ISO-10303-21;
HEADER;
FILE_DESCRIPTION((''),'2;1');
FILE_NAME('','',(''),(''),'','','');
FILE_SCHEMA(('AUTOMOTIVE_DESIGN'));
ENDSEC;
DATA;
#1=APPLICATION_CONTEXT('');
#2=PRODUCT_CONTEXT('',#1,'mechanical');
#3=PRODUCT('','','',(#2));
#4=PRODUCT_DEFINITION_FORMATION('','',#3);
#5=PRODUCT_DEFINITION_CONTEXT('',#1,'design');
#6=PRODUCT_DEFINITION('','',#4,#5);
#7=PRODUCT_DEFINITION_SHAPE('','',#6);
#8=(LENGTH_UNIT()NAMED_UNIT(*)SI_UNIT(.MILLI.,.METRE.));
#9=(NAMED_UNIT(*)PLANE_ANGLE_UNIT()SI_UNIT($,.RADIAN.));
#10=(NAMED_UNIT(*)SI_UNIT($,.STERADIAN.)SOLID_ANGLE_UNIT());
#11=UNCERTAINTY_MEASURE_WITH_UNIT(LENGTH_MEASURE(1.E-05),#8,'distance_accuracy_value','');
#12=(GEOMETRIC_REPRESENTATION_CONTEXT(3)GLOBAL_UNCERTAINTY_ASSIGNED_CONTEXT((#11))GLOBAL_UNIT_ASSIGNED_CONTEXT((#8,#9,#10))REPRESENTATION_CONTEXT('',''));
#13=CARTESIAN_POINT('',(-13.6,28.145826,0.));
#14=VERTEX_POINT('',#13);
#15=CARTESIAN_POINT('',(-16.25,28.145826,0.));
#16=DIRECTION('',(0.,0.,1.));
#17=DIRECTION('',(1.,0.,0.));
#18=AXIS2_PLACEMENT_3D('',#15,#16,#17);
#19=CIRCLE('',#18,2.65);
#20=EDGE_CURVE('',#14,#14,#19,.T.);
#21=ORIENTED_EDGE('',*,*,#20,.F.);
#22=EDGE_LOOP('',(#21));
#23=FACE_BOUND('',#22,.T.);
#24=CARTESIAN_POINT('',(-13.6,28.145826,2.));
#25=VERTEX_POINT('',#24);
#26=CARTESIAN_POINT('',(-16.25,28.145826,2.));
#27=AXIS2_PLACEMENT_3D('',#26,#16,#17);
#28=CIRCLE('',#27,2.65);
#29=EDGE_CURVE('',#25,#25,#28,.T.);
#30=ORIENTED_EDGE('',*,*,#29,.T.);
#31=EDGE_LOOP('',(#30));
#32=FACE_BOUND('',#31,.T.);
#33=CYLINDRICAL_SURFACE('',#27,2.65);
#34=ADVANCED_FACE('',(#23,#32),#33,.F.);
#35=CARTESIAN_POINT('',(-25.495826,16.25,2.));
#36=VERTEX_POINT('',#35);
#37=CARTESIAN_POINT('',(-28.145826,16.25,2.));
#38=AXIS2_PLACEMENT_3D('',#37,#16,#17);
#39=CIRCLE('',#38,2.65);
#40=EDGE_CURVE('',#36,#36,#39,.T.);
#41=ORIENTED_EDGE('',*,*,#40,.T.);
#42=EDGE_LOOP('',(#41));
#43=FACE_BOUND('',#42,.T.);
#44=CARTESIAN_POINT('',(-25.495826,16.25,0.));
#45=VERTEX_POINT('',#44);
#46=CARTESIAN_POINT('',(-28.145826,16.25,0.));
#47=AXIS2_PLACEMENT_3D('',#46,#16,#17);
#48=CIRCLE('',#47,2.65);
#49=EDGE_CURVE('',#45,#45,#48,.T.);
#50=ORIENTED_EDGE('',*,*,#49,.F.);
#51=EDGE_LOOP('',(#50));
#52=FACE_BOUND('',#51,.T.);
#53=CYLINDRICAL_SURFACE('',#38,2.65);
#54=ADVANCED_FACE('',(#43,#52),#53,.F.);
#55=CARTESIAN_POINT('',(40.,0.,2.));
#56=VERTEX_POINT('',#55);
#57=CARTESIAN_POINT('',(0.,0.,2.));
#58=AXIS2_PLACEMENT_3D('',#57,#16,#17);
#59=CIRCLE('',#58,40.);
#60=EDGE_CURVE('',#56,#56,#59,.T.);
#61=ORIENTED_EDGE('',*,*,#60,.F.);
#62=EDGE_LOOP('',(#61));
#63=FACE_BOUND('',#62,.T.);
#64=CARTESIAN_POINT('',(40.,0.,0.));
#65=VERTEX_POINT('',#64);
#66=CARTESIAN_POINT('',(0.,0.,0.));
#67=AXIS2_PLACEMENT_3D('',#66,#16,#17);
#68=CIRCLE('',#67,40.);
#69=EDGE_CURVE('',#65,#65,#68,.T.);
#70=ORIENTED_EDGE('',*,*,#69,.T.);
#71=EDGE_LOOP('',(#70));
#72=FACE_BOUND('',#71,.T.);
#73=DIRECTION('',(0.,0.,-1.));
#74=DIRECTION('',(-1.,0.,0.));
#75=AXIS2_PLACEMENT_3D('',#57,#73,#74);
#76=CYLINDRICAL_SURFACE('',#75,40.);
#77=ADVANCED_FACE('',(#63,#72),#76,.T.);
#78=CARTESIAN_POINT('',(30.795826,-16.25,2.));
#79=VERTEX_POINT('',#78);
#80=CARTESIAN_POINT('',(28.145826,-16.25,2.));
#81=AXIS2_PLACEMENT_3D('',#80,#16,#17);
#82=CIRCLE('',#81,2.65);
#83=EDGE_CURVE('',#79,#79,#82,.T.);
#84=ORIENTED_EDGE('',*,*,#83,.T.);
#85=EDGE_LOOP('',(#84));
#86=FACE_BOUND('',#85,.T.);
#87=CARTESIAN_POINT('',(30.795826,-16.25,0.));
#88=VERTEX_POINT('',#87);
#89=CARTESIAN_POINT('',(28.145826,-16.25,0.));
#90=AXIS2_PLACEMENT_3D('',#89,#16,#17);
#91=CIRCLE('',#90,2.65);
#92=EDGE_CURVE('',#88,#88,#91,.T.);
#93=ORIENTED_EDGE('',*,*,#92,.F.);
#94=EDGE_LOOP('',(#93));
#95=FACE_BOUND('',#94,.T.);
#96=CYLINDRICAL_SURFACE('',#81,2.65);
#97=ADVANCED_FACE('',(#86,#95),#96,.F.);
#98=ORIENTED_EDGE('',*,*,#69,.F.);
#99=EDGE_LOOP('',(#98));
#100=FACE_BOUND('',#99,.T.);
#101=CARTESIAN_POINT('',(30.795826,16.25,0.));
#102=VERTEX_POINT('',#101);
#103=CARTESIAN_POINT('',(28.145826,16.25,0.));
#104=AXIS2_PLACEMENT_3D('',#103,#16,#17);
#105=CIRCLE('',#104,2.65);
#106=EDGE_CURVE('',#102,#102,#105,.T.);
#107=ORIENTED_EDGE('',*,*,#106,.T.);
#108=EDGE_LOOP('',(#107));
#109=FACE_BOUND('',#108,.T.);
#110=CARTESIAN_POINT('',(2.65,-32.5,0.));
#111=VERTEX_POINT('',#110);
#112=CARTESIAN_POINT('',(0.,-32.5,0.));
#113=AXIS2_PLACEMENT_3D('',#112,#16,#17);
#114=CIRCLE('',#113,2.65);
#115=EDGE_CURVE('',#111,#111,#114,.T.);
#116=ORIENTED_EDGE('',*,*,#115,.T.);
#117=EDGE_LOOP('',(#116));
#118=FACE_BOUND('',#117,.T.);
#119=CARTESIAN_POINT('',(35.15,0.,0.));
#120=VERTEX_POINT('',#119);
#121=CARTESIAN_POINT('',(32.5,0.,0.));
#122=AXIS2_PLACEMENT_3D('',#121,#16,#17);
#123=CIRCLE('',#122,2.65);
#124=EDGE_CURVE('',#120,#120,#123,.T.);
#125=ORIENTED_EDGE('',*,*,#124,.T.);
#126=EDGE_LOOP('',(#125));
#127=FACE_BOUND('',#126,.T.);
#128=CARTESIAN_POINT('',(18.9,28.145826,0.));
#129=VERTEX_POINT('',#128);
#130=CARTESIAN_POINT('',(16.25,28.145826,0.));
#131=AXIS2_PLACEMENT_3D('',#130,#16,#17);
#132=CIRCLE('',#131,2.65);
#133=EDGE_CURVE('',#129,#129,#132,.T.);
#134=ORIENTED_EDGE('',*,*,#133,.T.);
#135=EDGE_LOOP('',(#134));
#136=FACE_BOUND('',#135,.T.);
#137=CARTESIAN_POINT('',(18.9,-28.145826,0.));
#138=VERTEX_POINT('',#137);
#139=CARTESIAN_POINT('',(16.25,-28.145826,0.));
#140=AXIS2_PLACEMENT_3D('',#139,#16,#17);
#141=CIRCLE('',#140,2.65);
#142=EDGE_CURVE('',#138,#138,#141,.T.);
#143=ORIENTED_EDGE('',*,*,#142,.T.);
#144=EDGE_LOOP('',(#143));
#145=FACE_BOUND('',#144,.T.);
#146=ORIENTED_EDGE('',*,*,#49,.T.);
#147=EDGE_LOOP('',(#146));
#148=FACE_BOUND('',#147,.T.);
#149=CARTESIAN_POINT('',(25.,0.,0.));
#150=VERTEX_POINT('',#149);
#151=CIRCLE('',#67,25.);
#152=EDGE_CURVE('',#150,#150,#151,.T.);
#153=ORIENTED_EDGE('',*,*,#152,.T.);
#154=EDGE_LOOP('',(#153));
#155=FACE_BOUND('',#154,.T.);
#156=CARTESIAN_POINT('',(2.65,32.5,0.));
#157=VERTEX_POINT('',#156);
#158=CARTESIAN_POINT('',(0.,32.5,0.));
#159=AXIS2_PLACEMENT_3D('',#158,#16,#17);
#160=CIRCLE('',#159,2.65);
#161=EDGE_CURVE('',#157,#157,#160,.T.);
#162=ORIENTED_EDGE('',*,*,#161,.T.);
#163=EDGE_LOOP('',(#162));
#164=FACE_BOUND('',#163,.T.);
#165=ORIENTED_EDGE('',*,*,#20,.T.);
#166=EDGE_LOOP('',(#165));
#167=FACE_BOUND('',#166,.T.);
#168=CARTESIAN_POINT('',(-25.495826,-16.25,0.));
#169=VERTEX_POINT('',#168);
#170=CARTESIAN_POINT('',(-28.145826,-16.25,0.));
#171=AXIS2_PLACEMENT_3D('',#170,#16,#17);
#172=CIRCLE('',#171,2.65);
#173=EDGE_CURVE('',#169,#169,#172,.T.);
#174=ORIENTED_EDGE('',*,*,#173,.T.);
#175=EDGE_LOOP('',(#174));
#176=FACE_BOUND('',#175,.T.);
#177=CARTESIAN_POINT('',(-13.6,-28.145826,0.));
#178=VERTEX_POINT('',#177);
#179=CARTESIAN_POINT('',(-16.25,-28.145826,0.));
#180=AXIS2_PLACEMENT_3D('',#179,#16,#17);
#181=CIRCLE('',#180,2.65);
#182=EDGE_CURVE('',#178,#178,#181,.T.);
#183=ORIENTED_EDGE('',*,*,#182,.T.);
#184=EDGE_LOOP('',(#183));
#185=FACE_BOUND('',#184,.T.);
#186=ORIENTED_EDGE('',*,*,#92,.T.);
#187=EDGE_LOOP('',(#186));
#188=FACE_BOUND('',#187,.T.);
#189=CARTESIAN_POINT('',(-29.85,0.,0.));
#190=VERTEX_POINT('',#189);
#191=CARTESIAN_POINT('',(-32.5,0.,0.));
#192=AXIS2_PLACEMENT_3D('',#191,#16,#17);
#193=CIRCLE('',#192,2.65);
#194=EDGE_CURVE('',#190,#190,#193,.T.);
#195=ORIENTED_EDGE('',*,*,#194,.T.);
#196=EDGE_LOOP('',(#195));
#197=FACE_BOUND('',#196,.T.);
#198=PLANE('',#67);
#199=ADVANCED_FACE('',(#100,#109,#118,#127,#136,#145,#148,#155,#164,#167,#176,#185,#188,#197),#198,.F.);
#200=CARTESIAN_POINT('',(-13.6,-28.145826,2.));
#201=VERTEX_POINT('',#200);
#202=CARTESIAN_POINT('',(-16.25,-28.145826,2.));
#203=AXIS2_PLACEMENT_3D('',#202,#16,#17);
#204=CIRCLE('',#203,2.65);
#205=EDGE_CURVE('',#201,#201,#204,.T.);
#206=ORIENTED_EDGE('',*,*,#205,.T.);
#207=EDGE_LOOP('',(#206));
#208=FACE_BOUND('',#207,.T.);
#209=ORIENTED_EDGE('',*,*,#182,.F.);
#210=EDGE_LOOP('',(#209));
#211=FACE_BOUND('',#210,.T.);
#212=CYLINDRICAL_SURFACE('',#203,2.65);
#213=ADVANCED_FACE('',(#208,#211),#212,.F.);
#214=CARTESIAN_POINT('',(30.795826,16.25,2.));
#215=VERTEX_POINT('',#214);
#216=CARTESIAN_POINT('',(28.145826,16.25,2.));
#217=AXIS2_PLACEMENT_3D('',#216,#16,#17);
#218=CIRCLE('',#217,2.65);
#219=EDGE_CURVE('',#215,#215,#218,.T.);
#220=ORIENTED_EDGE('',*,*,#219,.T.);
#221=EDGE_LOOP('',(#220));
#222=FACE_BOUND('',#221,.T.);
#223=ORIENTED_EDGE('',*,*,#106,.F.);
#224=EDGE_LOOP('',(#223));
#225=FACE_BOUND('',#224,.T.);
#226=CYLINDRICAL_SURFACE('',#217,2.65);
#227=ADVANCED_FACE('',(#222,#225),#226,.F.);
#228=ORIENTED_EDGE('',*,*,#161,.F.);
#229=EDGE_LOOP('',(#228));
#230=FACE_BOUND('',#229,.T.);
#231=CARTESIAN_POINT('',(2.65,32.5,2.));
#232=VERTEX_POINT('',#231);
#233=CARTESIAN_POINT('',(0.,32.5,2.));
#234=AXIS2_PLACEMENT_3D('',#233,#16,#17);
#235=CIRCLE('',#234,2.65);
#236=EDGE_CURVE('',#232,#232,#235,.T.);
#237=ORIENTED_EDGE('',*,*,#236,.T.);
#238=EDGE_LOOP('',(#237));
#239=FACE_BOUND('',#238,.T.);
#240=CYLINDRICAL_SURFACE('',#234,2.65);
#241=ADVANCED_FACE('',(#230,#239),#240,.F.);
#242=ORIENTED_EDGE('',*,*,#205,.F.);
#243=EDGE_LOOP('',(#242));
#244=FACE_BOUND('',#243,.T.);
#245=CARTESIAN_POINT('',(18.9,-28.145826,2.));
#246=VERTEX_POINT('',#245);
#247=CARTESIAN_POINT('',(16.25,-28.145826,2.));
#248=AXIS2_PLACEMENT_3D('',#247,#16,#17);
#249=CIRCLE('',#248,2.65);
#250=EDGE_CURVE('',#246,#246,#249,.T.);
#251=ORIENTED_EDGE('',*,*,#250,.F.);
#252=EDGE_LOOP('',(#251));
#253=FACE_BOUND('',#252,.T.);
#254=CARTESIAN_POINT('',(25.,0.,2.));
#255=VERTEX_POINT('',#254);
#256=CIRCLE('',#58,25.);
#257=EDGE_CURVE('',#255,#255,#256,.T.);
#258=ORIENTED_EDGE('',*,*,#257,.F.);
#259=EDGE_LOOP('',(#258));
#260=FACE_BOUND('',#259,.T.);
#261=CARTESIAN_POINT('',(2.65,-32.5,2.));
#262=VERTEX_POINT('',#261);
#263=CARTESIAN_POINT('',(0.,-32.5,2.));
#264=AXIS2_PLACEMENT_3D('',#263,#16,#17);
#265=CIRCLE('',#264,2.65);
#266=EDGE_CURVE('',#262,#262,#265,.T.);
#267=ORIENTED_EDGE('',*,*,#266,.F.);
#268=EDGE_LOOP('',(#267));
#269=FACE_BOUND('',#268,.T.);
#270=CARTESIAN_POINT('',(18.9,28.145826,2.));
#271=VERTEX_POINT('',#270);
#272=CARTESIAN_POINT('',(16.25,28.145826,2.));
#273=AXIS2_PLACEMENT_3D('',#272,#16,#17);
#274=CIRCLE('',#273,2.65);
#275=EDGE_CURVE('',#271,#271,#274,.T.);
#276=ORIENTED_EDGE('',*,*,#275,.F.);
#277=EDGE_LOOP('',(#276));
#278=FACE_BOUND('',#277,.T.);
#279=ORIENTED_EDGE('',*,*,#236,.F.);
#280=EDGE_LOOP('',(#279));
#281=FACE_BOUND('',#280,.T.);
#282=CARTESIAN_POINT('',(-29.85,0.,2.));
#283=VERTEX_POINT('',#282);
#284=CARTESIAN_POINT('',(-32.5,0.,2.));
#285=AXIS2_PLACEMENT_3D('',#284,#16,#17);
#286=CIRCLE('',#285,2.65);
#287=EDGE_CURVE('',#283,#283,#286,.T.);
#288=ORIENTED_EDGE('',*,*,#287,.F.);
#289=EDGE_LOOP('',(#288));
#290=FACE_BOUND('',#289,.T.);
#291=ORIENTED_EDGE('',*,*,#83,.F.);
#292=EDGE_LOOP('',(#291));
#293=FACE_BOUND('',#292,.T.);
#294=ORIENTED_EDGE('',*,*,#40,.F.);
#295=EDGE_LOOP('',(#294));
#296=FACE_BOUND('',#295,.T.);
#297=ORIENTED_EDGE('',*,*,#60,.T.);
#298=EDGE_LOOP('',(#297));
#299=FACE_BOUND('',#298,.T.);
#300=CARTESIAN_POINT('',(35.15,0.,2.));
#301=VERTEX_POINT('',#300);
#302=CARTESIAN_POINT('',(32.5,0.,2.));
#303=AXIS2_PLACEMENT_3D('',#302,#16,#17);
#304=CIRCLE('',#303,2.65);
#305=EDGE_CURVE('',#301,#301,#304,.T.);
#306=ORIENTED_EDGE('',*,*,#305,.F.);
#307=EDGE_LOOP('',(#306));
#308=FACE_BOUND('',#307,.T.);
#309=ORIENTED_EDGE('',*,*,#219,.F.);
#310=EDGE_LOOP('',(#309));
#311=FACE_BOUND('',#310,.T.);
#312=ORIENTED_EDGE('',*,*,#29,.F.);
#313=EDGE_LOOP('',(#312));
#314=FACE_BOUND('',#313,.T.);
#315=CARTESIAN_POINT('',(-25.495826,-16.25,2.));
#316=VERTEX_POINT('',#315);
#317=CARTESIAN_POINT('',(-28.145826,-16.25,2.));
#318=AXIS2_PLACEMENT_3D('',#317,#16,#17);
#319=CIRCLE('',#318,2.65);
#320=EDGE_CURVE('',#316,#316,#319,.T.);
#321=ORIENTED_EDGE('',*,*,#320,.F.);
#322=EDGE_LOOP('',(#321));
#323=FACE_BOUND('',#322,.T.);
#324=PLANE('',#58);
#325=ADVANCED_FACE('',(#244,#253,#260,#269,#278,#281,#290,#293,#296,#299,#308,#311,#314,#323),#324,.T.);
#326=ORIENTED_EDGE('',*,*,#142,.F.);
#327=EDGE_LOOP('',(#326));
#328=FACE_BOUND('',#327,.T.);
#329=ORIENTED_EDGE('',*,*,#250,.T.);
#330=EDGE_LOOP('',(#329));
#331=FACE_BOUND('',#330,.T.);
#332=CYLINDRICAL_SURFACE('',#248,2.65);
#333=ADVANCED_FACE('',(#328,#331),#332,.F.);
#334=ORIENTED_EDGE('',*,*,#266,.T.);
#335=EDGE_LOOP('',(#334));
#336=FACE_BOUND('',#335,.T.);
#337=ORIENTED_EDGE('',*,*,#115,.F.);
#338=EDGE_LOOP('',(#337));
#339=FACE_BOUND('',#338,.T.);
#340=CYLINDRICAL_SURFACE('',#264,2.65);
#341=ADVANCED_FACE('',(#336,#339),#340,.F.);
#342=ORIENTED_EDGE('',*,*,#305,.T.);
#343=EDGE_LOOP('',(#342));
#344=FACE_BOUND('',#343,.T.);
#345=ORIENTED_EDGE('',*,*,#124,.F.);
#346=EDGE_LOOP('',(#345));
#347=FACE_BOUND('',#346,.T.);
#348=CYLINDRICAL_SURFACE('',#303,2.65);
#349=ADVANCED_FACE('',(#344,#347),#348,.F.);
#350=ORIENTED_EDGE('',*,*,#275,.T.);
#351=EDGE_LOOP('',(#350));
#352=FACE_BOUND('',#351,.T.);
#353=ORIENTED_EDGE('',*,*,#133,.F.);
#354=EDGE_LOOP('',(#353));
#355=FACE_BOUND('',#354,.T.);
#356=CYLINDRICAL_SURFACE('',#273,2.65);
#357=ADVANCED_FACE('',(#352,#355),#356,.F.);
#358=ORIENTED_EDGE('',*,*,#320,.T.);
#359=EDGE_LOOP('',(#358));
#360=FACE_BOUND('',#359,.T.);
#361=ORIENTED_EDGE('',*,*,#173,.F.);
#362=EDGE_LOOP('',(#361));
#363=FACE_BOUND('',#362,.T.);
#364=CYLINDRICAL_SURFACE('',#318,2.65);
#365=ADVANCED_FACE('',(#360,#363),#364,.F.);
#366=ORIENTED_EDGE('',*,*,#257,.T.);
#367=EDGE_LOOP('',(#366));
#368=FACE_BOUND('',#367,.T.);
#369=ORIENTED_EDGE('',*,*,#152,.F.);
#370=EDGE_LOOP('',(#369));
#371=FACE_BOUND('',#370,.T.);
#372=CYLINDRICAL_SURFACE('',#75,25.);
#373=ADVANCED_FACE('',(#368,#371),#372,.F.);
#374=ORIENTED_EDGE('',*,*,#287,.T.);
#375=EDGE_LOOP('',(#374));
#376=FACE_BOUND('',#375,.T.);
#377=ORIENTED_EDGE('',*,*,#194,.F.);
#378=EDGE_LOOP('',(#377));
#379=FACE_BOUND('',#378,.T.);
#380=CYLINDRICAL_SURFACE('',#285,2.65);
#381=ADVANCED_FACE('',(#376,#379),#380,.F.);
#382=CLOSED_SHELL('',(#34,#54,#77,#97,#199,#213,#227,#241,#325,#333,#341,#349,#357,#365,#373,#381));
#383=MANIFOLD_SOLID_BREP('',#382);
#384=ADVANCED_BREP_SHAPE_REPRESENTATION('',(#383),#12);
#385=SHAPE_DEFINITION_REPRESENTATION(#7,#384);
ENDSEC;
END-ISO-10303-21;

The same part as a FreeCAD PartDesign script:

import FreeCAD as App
import Part
import Sketcher
Q = App.Units.Quantity

doc = App.newDocument("Part")
body = doc.addObject("PartDesign::Body", "Body")

# Sketch on XY plane
sketch1 = body.newObject("Sketcher::SketchObject", "Sketch")
sketch1.AttachmentSupport = (doc.getObject("XY_Plane"), [""])
sketch1.MapMode = "FlatFace"
sketch1.addGeometry([
    Part.Circle(App.Vector(0, 0, 0), App.Vector(0, 0, 1), 40),
    Part.Circle(App.Vector(0, 0, 0), App.Vector(0, 0, 1), 25),
], False)
sketch1.addConstraint([
    Sketcher.Constraint("Coincident", 0, 3, -1, 1),
    Sketcher.Constraint("Coincident", 1, 3, -1, 1),
    Sketcher.Constraint("Diameter", 0, Q("80 mm")),
    Sketcher.Constraint("Diameter", 1, Q("50 mm")),
])
pad1 = body.newObject("PartDesign::Pad", "Pad")
pad1.Profile = sketch1
pad1.Length = 2

# Sketch on XY plane
sketch2 = body.newObject("Sketcher::SketchObject", "Sketch001")
sketch2.AttachmentSupport = (doc.getObject("XY_Plane"), [""])
sketch2.MapMode = "FlatFace"
sketch2.AttachmentOffset = App.Placement(App.Vector(0, 0, 2), App.Rotation())
sketch2.addGeometry(Part.Circle(App.Vector(0, 32.5, 0), App.Vector(0, 0, 1), 2.65), False)
sketch2.addConstraint([
    Sketcher.Constraint("PointOnObject", 0, 3, -2),
    Sketcher.Constraint("Diameter", 0, Q("5.3 mm")),
    Sketcher.Constraint("DistanceY", -1, 1, 0, 3, Q("32.5 mm")),
])
doc.recompute()
hole = body.newObject("PartDesign::Hole", "Hole")
hole.Profile = sketch2
hole.ThreadType = "None"
hole.Diameter = 5.3
hole.DepthType = "ThroughAll"
doc.recompute()

polarpattern = body.newObject("PartDesign::PolarPattern", "PolarPattern")
polarpattern.Originals = [hole]
polarpattern.Axis = (doc.getObject("Z_Axis"), [""])
polarpattern.Angle = 360
polarpattern.Occurrences = 12
body.Tip = polarpattern

doc.recompute()
